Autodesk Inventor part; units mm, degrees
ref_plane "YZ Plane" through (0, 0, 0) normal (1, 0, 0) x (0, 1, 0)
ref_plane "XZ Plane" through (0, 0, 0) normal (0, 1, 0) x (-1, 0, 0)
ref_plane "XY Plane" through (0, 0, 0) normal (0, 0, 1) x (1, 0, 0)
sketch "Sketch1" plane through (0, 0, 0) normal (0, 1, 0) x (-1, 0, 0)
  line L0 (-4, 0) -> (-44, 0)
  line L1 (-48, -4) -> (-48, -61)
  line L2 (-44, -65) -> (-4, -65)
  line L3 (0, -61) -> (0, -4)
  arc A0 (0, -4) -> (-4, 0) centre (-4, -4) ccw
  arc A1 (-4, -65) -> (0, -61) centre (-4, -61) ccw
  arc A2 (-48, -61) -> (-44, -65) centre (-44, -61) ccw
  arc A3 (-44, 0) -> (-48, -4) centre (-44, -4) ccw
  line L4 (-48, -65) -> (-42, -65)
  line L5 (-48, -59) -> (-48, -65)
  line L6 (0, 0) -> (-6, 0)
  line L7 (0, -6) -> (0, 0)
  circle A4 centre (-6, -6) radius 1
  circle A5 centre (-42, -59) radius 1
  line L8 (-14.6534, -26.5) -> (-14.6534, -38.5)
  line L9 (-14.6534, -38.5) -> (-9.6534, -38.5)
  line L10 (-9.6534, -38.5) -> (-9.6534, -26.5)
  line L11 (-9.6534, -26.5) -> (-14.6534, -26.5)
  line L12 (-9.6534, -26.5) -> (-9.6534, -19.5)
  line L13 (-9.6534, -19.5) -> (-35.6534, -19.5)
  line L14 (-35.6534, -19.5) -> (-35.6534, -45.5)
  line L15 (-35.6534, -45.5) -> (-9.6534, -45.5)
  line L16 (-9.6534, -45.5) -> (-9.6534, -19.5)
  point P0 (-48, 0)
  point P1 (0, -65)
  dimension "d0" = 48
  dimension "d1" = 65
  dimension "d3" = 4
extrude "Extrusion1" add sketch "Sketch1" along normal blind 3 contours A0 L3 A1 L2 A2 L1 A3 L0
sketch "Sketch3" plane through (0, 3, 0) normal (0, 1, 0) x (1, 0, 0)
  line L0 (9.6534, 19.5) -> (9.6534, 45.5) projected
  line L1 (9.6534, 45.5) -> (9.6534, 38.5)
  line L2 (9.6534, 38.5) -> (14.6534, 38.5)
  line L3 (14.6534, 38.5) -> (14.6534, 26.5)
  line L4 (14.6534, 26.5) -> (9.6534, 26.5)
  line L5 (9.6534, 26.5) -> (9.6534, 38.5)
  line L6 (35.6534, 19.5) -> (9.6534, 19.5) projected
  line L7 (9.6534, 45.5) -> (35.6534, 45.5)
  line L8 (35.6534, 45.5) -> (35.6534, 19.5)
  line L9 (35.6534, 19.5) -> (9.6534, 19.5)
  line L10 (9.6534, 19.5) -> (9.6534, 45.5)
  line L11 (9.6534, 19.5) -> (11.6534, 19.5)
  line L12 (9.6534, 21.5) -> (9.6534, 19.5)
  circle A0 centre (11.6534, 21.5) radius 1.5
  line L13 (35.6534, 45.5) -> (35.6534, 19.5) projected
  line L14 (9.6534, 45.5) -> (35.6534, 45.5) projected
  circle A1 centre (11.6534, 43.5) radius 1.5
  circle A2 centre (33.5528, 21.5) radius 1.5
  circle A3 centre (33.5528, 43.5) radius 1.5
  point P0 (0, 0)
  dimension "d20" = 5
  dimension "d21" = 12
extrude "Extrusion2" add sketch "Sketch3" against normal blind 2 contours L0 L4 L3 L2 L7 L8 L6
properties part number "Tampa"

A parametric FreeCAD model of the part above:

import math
import FreeCAD as App
import Part
import Sketcher

V = App.Vector
Q = App.Units.Quantity


def add_polygon(sketch, points):
    """Adds a closed chain of lines whose ends are joined by coincident constraints."""
    first, n = sketch.GeometryCount, len(points)
    for a, b in zip(points, points[1:] + points[:1]):
        sketch.addGeometry(Part.LineSegment(App.Vector(*a, 0), App.Vector(*b, 0)), False)
    for i in range(n):
        sketch.addConstraint(Sketcher.Constraint("Coincident", first + i, 2, first + (i + 1) % n, 1))

doc = App.newDocument("Part")
body = doc.addObject("PartDesign::Body", "Body")

sketch1 = body.newObject("Sketcher::SketchObject", "Sketch")
sketch1.AttachmentSupport = (doc.getObject("XZ_Plane"), [""])
sketch1.MapMode = "FlatFace"
sketch1.addGeometry(Part.ArcOfCircle(Part.Circle(V(4, -4, 0), V(0, 0, 1), 4), math.radians(90), math.radians(180)), False)
sketch1.addGeometry(Part.LineSegment(V(4, 0, 0), V(44, 0, 0)), False)
sketch1.addGeometry(Part.ArcOfCircle(Part.Circle(V(44, -4, 0), V(0, 0, 1), 4), math.radians(0), math.radians(90)), False)
sketch1.addGeometry(Part.LineSegment(V(48, -4, 0), V(48, -61, 0)), False)
sketch1.addGeometry(Part.ArcOfCircle(Part.Circle(V(44, -61, 0), V(0, 0, 1), 4), math.radians(-90), math.radians(0)), False)
sketch1.addGeometry(Part.LineSegment(V(44, -65, 0), V(4, -65, 0)), False)
sketch1.addGeometry(Part.ArcOfCircle(Part.Circle(V(4, -61, 0), V(0, 0, 1), 4), math.radians(180), math.radians(270)), False)
sketch1.addGeometry(Part.LineSegment(V(0, -61, 0), V(0, -4, 0)), False)
sketch1.addGeometry(Part.Circle(V(42, -59, 0), V(0, 0, 1), 1), False)
add_polygon(sketch1, [(9.7, -19.5), (9.7, -45.5), (35.7, -45.5), (35.7, -19.5)])
sketch1.addGeometry(Part.Circle(V(6, -6, 0), V(0, 0, 1), 1), False)
sketch1.addConstraint(Sketcher.Constraint("Tangent", 0, 1, 1, 1))
sketch1.addConstraint(Sketcher.Constraint("Tangent", 1, 2, 2, 2))
sketch1.addConstraint(Sketcher.Constraint("Tangent", 2, 1, 3, 1))
sketch1.addConstraint(Sketcher.Constraint("Tangent", 3, 2, 4, 2))
sketch1.addConstraint(Sketcher.Constraint("Tangent", 4, 1, 5, 1))
sketch1.addConstraint(Sketcher.Constraint("Tangent", 5, 2, 6, 2))
sketch1.addConstraint(Sketcher.Constraint("Tangent", 6, 1, 7, 1))
sketch1.addConstraint(Sketcher.Constraint("Tangent", 7, 2, 0, 2))
sketch1.addConstraint(Sketcher.Constraint("Horizontal", 1))
sketch1.addConstraint(Sketcher.Constraint("Vertical", 3))
sketch1.addConstraint(Sketcher.Constraint("Horizontal", 5))
sketch1.addConstraint(Sketcher.Constraint("Vertical", 7))
sketch1.addConstraint(Sketcher.Constraint("Vertical", 9))
sketch1.addConstraint(Sketcher.Constraint("Horizontal", 10))
sketch1.addConstraint(Sketcher.Constraint("Vertical", 11))
sketch1.addConstraint(Sketcher.Constraint("Horizontal", 12))
sketch1.addConstraint(Sketcher.Constraint("Equal", 0, 2))
sketch1.addConstraint(Sketcher.Constraint("Equal", 2, 4))
sketch1.addConstraint(Sketcher.Constraint("Equal", 4, 6))
sketch1.addConstraint(Sketcher.Constraint("Equal", 8, 13))
sketch1.addConstraint(Sketcher.Constraint("PointOnObject", 0, 1, -1))
sketch1.addConstraint(Sketcher.Constraint("PointOnObject", 6, 1, -2))
sketch1.addConstraint(Sketcher.Constraint("Equal", 12, 9))
sketch1.addConstraint(Sketcher.Constraint("Radius", 0, Q("4 mm")))
sketch1.addConstraint(Sketcher.Constraint("Diameter", 8, Q("2 mm")))
sketch1.addConstraint(Sketcher.Constraint("DistanceX", -1, 1, 2, 1, Q("48 mm")))
sketch1.addConstraint(Sketcher.Constraint("DistanceY", 4, 1, -1, 1, Q("65 mm")))
sketch1.addConstraint(Sketcher.Constraint("DistanceX", 10, 1, 10, 2, Q("26 mm")))
sketch1.addConstraint(Sketcher.Constraint("DistanceX", -1, 1, 8, 3, Q("42 mm")))
sketch1.addConstraint(Sketcher.Constraint("DistanceY", 8, 3, -1, 1, Q("59 mm")))
sketch1.addConstraint(Sketcher.Constraint("DistanceX", -1, 1, 13, 3, Q("6 mm")))
sketch1.addConstraint(Sketcher.Constraint("DistanceY", 13, 3, -1, 1, Q("6 mm")))
sketch1.addConstraint(Sketcher.Constraint("DistanceY", 9, 2, -1, 1, Q("45.5 mm")))
sketch1.addConstraint(Sketcher.Constraint("DistanceX", -1, 1, 9, 2, Q("9.6534 mm")))
pad1 = body.newObject("PartDesign::Pad", "Pad")
pad1.Profile = sketch1
pad1.Length = 3
pad1.Reversed = True

sketch2 = body.newObject("Sketcher::SketchObject", "Sketch001")
sketch2.AttachmentSupport = (doc.getObject("XZ_Plane"), [""])
sketch2.MapMode = "FlatFace"
sketch2.AttachmentOffset = App.Placement(V(0, 0, -3), App.Rotation())
add_polygon(sketch2, [(9.7, -26.5), (9.7, -19.5), (35.7, -19.5), (35.7, -45.5), (9.7, -45.5), (9.7, -38.5), (14.7, -38.5), (14.7, -26.5)])
sketch2.addGeometry(Part.Circle(V(11.7, -21.5, 0), V(0, 0, 1), 1.5), False)
sketch2.addGeometry(Part.Circle(V(33.6, -21.5, 0), V(0, 0, 1), 1.5), False)
sketch2.addGeometry(Part.Circle(V(11.7, -43.5, 0), V(0, 0, 1), 1.5), False)
sketch2.addGeometry(Part.Circle(V(33.6, -43.5, 0), V(0, 0, 1), 1.5), False)
sketch2.addConstraint(Sketcher.Constraint("Vertical", 0))
sketch2.addConstraint(Sketcher.Constraint("Horizontal", 1))
sketch2.addConstraint(Sketcher.Constraint("Vertical", 2))
sketch2.addConstraint(Sketcher.Constraint("Horizontal", 3))
sketch2.addConstraint(Sketcher.Constraint("Vertical", 4))
sketch2.addConstraint(Sketcher.Constraint("Horizontal", 5))
sketch2.addConstraint(Sketcher.Constraint("Vertical", 6))
sketch2.addConstraint(Sketcher.Constraint("Horizontal", 7))
sketch2.addConstraint(Sketcher.Constraint("Equal", 8, 9))
sketch2.addConstraint(Sketcher.Constraint("Equal", 9, 10))
sketch2.addConstraint(Sketcher.Constraint("Equal", 10, 11))
sketch2.addConstraint(Sketcher.Constraint("Horizontal", 8, 3, 9, 3))
sketch2.addConstraint(Sketcher.Constraint("Horizontal", 10, 3, 11, 3))
sketch2.addConstraint(Sketcher.Constraint("Vertical", 8, 3, 10, 3))
sketch2.addConstraint(Sketcher.Constraint("Vertical", 9, 3, 11, 3))
sketch2.addConstraint(Sketcher.Constraint("Vertical", 0, 2, 3, 2))
sketch2.addConstraint(Sketcher.Constraint("Equal", 3, 2))
sketch2.addConstraint(Sketcher.Constraint("Equal", 0, 4))
sketch2.addConstraint(Sketcher.Constraint("DistanceX", 5, 1, 5, 2, Q("5 mm")))
sketch2.addConstraint(Sketcher.Constraint("DistanceY", 6, 1, 6, 2, Q("12 mm")))
sketch2.addConstraint(Sketcher.Constraint("Diameter", 8, Q("3 mm")))
sketch2.addConstraint(Sketcher.Constraint("DistanceY", 10, 3, 4, 2, Q("5 mm")))
sketch2.addConstraint(Sketcher.Constraint("DistanceY", 6, 2, 8, 3, Q("5 mm")))
sketch2.addConstraint(Sketcher.Constraint("DistanceX", 1, 1, 1, 2, Q("26 mm")))
sketch2.addConstraint(Sketcher.Constraint("DistanceX", 0, 2, 8, 3, Q("2 mm")))
sketch2.addConstraint(Sketcher.Constraint("DistanceY", 8, 3, -1, 1, Q("21.5 mm")))
sketch2.addConstraint(Sketcher.Constraint("DistanceX", -1, 1, 8, 3, Q("11.6534 mm")))
sketch2.addConstraint(Sketcher.Constraint("DistanceX", -1, 1, 9, 3, Q("33.5528 mm")))
pad2 = body.newObject("PartDesign::Pad", "Pad001")
pad2.Profile = sketch2
pad2.Length = 2

doc.recompute()
